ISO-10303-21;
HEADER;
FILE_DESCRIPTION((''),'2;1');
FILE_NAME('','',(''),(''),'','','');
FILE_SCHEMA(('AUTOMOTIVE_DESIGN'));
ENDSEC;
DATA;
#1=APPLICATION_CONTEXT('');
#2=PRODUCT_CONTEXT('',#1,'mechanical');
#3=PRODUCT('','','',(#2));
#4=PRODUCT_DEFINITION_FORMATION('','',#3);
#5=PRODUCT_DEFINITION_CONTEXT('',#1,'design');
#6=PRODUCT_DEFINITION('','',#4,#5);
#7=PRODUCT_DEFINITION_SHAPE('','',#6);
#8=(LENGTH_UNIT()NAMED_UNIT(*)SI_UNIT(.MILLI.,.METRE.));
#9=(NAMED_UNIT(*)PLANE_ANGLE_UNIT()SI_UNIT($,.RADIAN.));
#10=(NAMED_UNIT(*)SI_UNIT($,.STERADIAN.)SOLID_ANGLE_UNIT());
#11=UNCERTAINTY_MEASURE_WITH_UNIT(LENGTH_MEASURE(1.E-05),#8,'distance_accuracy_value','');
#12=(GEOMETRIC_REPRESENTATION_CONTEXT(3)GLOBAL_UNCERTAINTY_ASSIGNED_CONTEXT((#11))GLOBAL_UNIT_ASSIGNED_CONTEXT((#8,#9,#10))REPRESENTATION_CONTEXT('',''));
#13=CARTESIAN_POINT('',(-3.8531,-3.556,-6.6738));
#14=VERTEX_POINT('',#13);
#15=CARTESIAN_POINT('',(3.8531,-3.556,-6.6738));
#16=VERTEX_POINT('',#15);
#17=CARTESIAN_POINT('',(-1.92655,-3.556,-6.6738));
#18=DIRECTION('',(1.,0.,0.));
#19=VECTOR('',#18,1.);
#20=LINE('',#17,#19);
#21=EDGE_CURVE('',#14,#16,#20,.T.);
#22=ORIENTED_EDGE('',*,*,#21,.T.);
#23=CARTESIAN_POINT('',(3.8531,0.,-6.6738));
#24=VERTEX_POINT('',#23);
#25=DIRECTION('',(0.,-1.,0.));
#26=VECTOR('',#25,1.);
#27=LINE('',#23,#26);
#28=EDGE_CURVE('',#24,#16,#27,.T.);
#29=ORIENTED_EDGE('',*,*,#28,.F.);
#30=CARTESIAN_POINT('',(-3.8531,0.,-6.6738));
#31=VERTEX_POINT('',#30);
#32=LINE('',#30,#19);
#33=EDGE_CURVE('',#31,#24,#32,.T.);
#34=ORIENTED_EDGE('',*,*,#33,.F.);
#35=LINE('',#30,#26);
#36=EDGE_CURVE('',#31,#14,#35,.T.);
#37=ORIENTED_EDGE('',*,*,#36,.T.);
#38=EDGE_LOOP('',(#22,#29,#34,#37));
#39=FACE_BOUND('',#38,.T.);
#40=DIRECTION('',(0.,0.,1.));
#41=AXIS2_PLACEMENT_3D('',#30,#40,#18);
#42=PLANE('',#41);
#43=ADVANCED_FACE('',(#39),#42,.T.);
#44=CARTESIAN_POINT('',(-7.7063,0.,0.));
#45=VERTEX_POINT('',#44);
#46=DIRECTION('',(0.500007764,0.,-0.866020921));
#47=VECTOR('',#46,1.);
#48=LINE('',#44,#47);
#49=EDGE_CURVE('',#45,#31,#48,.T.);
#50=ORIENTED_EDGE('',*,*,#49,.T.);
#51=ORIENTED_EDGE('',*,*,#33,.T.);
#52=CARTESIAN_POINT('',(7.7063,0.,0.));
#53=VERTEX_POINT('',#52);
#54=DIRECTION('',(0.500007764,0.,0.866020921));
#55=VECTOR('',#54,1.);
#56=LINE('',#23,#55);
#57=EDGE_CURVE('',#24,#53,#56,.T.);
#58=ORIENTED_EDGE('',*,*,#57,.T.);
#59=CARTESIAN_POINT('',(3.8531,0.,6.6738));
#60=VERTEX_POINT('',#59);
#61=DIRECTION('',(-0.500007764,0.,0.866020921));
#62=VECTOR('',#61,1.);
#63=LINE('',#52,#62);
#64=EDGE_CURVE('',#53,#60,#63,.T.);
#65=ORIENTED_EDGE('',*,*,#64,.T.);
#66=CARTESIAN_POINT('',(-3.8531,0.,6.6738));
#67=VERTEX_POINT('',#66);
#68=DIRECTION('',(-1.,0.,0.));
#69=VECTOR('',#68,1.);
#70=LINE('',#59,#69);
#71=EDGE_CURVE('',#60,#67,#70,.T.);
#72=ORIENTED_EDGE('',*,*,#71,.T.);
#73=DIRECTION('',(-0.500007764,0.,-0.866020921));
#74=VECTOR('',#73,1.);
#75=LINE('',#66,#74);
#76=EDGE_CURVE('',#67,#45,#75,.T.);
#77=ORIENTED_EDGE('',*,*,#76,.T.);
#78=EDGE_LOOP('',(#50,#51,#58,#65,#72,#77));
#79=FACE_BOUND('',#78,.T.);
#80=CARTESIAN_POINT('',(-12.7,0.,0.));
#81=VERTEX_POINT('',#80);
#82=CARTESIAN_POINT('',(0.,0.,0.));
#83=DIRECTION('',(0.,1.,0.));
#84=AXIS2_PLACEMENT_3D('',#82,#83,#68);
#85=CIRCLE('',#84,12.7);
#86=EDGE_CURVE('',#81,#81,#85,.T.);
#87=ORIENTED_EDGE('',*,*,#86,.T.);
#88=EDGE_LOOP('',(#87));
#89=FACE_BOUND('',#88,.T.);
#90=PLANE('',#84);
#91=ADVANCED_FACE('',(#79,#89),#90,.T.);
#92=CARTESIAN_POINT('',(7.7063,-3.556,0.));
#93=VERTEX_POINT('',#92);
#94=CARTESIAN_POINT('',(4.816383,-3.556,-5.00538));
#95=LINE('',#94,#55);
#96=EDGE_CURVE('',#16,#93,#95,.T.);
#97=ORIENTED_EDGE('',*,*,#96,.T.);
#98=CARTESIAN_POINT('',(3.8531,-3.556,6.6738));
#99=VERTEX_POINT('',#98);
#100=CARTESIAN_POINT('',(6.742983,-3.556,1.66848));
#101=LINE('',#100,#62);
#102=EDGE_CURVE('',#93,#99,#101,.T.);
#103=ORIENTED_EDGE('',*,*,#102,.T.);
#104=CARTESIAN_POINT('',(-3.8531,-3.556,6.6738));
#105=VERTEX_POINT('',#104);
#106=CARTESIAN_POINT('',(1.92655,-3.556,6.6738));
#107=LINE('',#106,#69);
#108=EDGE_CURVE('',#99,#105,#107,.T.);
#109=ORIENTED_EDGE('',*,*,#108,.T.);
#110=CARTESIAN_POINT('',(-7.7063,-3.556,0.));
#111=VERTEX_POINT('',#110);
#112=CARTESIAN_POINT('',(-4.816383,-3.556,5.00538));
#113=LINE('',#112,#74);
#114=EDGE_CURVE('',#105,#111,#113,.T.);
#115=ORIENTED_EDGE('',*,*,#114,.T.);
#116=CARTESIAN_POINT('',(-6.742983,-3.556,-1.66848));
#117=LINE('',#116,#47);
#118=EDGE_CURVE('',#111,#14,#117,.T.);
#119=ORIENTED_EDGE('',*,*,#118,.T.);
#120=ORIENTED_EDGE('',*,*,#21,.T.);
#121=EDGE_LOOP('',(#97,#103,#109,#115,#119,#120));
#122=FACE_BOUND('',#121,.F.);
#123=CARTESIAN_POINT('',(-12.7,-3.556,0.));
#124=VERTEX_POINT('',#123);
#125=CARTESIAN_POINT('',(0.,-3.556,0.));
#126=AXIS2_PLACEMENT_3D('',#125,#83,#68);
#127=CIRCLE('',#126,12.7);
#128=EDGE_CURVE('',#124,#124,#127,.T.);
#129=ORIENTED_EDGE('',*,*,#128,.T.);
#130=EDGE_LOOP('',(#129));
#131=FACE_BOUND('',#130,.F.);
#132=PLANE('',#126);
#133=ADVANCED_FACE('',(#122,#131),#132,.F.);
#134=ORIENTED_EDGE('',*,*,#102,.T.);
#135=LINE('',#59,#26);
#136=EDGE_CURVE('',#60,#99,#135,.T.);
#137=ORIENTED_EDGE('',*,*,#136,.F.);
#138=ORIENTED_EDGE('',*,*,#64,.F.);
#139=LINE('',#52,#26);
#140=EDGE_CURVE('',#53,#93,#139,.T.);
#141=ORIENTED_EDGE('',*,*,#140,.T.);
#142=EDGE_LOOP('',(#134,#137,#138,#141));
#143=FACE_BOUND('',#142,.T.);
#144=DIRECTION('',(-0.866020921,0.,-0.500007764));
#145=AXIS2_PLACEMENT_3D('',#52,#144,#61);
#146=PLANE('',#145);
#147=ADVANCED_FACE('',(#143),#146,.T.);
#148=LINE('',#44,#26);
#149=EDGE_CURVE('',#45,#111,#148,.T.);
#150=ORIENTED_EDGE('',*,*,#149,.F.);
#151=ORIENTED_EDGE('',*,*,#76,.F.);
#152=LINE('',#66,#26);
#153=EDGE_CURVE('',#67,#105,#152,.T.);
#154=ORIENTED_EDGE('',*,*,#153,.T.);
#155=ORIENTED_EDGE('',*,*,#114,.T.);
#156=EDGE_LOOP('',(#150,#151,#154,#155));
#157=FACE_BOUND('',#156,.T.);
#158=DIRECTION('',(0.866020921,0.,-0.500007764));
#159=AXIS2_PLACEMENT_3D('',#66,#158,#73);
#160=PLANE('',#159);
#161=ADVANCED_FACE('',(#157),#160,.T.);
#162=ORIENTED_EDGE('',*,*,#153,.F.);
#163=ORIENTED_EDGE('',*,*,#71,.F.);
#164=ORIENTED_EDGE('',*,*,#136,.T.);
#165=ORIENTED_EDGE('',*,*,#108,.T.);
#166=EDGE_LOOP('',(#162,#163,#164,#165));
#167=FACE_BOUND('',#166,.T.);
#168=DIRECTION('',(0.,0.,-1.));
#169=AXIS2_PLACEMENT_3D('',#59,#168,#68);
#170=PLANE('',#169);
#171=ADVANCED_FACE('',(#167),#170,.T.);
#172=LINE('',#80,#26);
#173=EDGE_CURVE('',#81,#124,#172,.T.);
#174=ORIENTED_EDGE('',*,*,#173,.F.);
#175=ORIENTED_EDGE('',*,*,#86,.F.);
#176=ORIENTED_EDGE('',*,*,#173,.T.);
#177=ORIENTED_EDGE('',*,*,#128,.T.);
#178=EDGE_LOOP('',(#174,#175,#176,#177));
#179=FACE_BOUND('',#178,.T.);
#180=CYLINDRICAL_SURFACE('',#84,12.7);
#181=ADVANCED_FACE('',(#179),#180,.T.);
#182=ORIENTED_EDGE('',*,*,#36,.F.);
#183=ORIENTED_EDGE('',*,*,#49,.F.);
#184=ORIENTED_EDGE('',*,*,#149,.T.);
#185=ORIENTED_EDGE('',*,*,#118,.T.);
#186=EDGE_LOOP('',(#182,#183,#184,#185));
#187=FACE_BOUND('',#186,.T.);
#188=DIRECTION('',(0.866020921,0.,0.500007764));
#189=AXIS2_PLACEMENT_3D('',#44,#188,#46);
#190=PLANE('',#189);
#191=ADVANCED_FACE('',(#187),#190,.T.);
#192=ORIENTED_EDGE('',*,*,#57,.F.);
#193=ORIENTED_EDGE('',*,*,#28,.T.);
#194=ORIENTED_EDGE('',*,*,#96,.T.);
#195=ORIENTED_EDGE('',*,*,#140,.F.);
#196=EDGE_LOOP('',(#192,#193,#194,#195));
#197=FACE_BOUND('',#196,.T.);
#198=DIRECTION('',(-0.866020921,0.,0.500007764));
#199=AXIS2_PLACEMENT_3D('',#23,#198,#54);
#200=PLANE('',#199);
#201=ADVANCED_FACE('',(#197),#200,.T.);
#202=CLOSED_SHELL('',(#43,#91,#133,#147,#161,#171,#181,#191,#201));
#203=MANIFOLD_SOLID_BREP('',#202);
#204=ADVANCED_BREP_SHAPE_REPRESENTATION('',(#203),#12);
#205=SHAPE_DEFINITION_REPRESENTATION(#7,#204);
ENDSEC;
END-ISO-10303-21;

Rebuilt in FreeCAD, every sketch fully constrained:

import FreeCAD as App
import Part
import Sketcher
from FreeCAD import Vector
Q = App.Units.Quantity

doc = App.newDocument("Part")
body = doc.addObject("PartDesign::Body", "Body")

sketch1 = body.newObject("Sketcher::SketchObject", "Sketch")
sketch1.AttachmentSupport = (doc.getObject("XZ_Plane"), [""])
sketch1.MapMode = "FlatFace"
sketch1.addGeometry(Part.Circle(Vector(0, 0, 0), Vector(0, 0, 1), 13), False)
sketch1.addConstraint(Sketcher.Constraint("Coincident", 0, 3, -1, 1))
sketch1.addConstraint(Sketcher.Constraint("Diameter", 0, Q("1 in")))
pad1 = body.newObject("PartDesign::Pad", "Pad")
pad1.Profile = sketch1
pad1.Length = Q("0.14 in")

sketch2 = body.newObject("Sketcher::SketchObject", "Sketch001")
sketch2.AttachmentSupport = (doc.getObject("XZ_Plane"), [""])
sketch2.MapMode = "FlatFace"
sketch2.addGeometry(Part.LineSegment(Vector(-4, -7, 0), Vector(-8, 0, 0)), False)
sketch2.addGeometry(Part.LineSegment(Vector(-8, 0, 0), Vector(-4, 7, 0)), False)
sketch2.addGeometry(Part.LineSegment(Vector(-4, 7, 0), Vector(4, 7, 0)), False)
sketch2.addGeometry(Part.LineSegment(Vector(4, 7, 0), Vector(8, 0, 0)), False)
sketch2.addGeometry(Part.LineSegment(Vector(8, 0, 0), Vector(4, -7, 0)), False)
sketch2.addGeometry(Part.LineSegment(Vector(4, -7, 0), Vector(-4, -7, 0)), False)
sketch2.addConstraint(Sketcher.Constraint("Coincident", 0, 2, 1, 1))
sketch2.addConstraint(Sketcher.Constraint("Coincident", 1, 2, 2, 1))
sketch2.addConstraint(Sketcher.Constraint("Coincident", 2, 2, 3, 1))
sketch2.addConstraint(Sketcher.Constraint("Coincident", 3, 2, 4, 1))
sketch2.addConstraint(Sketcher.Constraint("Coincident", 4, 2, 5, 1))
sketch2.addConstraint(Sketcher.Constraint("Coincident", 5, 2, 0, 1))
sketch2.addConstraint(Sketcher.Constraint("Horizontal", 2))
sketch2.addConstraint(Sketcher.Constraint("Horizontal", 5))
sketch2.addConstraint(Sketcher.Constraint("Symmetric", 0, 2, 3, 2, -1, 1))
sketch2.addConstraint(Sketcher.Constraint("Symmetric", 1, 2, 4, 2, -1, 1))
sketch2.addConstraint(Sketcher.Constraint("PointOnObject", 0, 2, -1))
sketch2.addConstraint(Sketcher.Constraint("Parallel", 0, 3))
sketch2.addConstraint(Sketcher.Constraint("Vertical", 2, 2, 4, 2))
sketch2.addConstraint(Sketcher.Constraint("Angle", 0, Q("120.0005 deg")))
sketch2.addConstraint(Sketcher.Constraint("DistanceY", 4, 2, 2, 2, Q("0.5255 in")))
sketch2.addConstraint(Sketcher.Constraint("DistanceX", 2, 1, 2, 2, Q("0.3034 in")))
pocket1 = body.newObject("PartDesign::Pocket", "Pocket")
pocket1.Profile = sketch2
pocket1.Type = "ThroughAll"
pocket1.Reversed = True

doc.recompute()
